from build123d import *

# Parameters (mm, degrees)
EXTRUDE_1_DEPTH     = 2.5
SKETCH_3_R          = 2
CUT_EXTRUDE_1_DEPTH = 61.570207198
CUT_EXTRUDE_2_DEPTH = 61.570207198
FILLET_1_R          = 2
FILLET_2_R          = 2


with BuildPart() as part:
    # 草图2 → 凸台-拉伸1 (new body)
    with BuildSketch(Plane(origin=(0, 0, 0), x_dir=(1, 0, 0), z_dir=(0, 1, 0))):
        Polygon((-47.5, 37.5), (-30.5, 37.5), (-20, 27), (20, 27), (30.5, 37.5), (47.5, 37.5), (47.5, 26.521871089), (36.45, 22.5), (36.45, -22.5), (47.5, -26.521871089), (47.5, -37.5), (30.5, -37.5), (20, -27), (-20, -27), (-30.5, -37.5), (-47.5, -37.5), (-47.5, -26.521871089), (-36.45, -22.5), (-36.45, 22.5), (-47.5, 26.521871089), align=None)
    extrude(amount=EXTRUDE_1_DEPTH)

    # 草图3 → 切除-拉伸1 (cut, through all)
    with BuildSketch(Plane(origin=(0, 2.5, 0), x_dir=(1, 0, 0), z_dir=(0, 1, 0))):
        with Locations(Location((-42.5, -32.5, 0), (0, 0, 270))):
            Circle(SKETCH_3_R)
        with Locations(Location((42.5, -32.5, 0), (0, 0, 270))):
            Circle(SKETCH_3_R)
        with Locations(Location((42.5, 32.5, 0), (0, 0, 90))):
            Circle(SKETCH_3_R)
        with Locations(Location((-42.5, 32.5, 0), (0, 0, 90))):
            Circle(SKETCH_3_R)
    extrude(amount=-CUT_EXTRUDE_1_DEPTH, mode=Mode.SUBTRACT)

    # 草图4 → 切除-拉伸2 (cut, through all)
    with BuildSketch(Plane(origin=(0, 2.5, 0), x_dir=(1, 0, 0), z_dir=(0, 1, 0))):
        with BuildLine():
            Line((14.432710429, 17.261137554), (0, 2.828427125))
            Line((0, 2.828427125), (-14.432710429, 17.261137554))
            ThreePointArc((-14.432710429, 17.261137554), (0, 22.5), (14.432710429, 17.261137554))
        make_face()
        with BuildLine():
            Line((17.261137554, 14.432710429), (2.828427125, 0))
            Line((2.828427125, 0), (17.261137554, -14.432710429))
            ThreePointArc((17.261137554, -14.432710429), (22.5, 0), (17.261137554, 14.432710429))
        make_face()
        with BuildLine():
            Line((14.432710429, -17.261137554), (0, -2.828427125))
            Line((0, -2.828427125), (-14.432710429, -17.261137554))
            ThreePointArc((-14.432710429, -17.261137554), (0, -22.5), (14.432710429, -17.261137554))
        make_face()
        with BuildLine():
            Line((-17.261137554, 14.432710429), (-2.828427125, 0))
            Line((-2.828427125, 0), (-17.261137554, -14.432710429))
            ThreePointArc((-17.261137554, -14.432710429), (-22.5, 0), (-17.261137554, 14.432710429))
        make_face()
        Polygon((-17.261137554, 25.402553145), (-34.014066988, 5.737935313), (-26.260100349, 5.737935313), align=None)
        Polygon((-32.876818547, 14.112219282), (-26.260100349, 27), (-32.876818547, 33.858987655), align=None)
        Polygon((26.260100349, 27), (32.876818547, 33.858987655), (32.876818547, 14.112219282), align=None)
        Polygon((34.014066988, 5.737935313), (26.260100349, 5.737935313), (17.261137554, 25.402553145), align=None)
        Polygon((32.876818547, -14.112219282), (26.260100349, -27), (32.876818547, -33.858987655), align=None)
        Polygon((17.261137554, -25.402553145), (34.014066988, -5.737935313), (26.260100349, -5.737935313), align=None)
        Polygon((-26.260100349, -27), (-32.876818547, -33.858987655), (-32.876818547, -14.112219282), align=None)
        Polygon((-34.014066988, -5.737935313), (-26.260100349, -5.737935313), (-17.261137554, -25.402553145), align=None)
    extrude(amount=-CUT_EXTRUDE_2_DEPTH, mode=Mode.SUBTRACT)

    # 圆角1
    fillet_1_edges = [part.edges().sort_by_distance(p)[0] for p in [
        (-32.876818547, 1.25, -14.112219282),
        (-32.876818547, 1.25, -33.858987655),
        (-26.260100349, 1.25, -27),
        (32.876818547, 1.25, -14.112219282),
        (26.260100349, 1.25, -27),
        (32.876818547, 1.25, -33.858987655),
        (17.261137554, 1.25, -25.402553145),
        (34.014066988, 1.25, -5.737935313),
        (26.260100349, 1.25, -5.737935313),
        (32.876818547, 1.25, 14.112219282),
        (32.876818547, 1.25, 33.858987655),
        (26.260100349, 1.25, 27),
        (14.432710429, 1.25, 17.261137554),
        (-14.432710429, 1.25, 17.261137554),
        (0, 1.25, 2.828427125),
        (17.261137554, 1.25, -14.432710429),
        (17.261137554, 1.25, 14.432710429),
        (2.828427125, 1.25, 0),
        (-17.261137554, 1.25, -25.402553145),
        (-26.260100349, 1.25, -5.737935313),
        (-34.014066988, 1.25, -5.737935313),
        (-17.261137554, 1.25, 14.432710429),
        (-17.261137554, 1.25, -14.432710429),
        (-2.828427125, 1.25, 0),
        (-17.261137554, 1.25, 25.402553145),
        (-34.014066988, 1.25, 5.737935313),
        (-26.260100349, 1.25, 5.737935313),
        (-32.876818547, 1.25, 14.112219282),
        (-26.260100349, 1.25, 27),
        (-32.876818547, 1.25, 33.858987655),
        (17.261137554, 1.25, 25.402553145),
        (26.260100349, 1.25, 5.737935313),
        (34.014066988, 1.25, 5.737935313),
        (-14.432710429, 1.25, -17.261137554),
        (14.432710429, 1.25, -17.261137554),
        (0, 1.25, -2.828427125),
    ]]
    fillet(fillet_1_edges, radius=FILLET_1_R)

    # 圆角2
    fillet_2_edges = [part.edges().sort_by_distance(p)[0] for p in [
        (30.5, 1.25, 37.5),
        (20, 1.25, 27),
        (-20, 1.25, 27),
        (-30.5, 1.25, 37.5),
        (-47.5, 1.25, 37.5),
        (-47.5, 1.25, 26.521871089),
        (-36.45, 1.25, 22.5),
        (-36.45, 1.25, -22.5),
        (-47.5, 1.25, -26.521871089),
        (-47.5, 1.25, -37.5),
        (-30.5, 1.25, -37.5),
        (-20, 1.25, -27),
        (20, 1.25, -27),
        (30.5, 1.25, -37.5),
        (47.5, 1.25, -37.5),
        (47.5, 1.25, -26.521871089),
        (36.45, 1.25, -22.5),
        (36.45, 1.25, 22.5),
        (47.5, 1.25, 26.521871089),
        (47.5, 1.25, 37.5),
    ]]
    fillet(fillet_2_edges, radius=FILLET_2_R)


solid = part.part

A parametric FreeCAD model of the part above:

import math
import FreeCAD as App
import Part
import Sketcher
from FreeCAD import Vector
Q = App.Units.Quantity


def edges_at(feature, points):
    """Names of the edges that pass closest to the given points."""
    edges = feature.Shape.Edges
    near = lambda p: min(range(len(edges)), key=lambda i: edges[i].distToShape(Part.Vertex(*p))[0])
    return sorted({f"Edge{near(p) + 1}" for p in points})


def add_polygon(sketch, points):
    """Adds a closed chain of lines whose ends are joined by coincident constraints."""
    first, n = sketch.GeometryCount, len(points)
    for a, b in zip(points, points[1:] + points[:1]):
        sketch.addGeometry(Part.LineSegment(App.Vector(*a, 0), App.Vector(*b, 0)), False)
    for i in range(n):
        sketch.addConstraint(Sketcher.Constraint("Coincident", first + i, 2, first + (i + 1) % n, 1))

doc = App.newDocument("Part")
body = doc.addObject("PartDesign::Body", "Body")

sketch1 = body.newObject("Sketcher::SketchObject", "Sketch")
sketch1.AttachmentSupport = (doc.getObject("XZ_Plane"), [""])
sketch1.MapMode = "FlatFace"
add_polygon(sketch1, [(-30, -38), (-48, -38), (-48, -27), (-36, -22), (-36, 22), (-48, 27), (-48, 38), (-30, 38), (-20, 27), (20, 27), (30, 38), (48, 38), (48, 27), (36, 22), (36, -22), (48, -27), (48, -38), (30, -38), (20, -27), (-20, -27)])
sketch1.addConstraint(Sketcher.Constraint("Horizontal", 0))
sketch1.addConstraint(Sketcher.Constraint("Vertical", 1))
sketch1.addConstraint(Sketcher.Constraint("Vertical", 3))
sketch1.addConstraint(Sketcher.Constraint("Vertical", 5))
sketch1.addConstraint(Sketcher.Constraint("Horizontal", 6))
sketch1.addConstraint(Sketcher.Constraint("Horizontal", 8))
sketch1.addConstraint(Sketcher.Constraint("Horizontal", 10))
sketch1.addConstraint(Sketcher.Constraint("Vertical", 11))
sketch1.addConstraint(Sketcher.Constraint("Vertical", 13))
sketch1.addConstraint(Sketcher.Constraint("Vertical", 15))
sketch1.addConstraint(Sketcher.Constraint("Horizontal", 16))
sketch1.addConstraint(Sketcher.Constraint("Horizontal", 18))
sketch1.addConstraint(Sketcher.Constraint("Symmetric", 0, 2, 10, 2, -1, 1))
sketch1.addConstraint(Sketcher.Constraint("Symmetric", 2, 2, 12, 2, -1, 1))
sketch1.addConstraint(Sketcher.Constraint("Symmetric", 4, 2, 14, 2, -1, 1))
sketch1.addConstraint(Sketcher.Constraint("Symmetric", 6, 2, 16, 2, -1, 1))
sketch1.addConstraint(Sketcher.Constraint("Symmetric", 7, 2, 17, 2, -1, 1))
sketch1.addConstraint(Sketcher.Constraint("Symmetric", 6, 2, 9, 2, -2))
sketch1.addConstraint(Sketcher.Constraint("Symmetric", 4, 2, 11, 2, -2))
sketch1.addConstraint(Sketcher.Constraint("Perpendicular", 7, 9))
sketch1.addConstraint(Sketcher.Constraint("Parallel", 2, 12))
sketch1.addConstraint(Sketcher.Constraint("Parallel", 4, 14))
sketch1.addConstraint(Sketcher.Constraint("Perpendicular", 17, 19))
sketch1.addConstraint(Sketcher.Constraint("Horizontal", 3, 2, 12, 2))
sketch1.addConstraint(Sketcher.Constraint("Vertical", 8, 2, 17, 2))
sketch1.addConstraint(Sketcher.Constraint("Vertical", 7, 2, 18, 2))
sketch1.addConstraint(Sketcher.Constraint("DistanceX", 0, 2, 0, 1, 17.0))
sketch1.addConstraint(Sketcher.Constraint("DistanceX", 8, 1, 8, 2, 40.0))
sketch1.addConstraint(Sketcher.Constraint("DistanceY", 3, 1, 3, 2, 45.0))
sketch1.addConstraint(Sketcher.Constraint("Angle", 2, Q("20 deg")))
sketch1.addConstraint(Sketcher.Constraint("DistanceY", -1, 1, 7, 2, 27.0))
sketch1.addConstraint(Sketcher.Constraint("DistanceY", 0, 2, 2, 2, 15.0))
sketch1.addConstraint(Sketcher.Constraint("DistanceX", 2, 2, -1, 1, 36.45))
pad1 = body.newObject("PartDesign::Pad", "Pad")
pad1.Profile = sketch1
pad1.Length = 2.5
pad1.Reversed = True

sketch2 = body.newObject("Sketcher::SketchObject", "Sketch001")
sketch2.AttachmentSupport = (doc.getObject("XZ_Plane"), [""])
sketch2.MapMode = "FlatFace"
sketch2.AttachmentOffset = App.Placement(Vector(0, 0, -2.5), App.Rotation())
sketch2.addGeometry(Part.Circle(Vector(-42.5, 32.5, 0), Vector(0, 0, 1), 2), False)
sketch2.addGeometry(Part.Circle(Vector(42.5, 32.5, 0), Vector(0, 0, 1), 2), False)
sketch2.addGeometry(Part.Circle(Vector(42.5, -32.5, 0), Vector(0, 0, 1), 2), False)
sketch2.addGeometry(Part.Circle(Vector(-42.5, -32.5, 0), Vector(0, 0, 1), 2), False)
sketch2.addConstraint(Sketcher.Constraint("Equal", 0, 1))
sketch2.addConstraint(Sketcher.Constraint("Equal", 1, 2))
sketch2.addConstraint(Sketcher.Constraint("Equal", 2, 3))
sketch2.addConstraint(Sketcher.Constraint("Symmetric", 0, 3, 2, 3, -1, 1))
sketch2.addConstraint(Sketcher.Constraint("Symmetric", 1, 3, 3, 3, -1, 1))
sketch2.addConstraint(Sketcher.Constraint("Symmetric", 0, 3, 1, 3, -2))
sketch2.addConstraint(Sketcher.Constraint("Diameter", 0, 4.0))
sketch2.addConstraint(Sketcher.Constraint("DistanceX", 0, 3, 1, 3, 85.0))
sketch2.addConstraint(Sketcher.Constraint("DistanceY", 2, 3, 1, 3, 65.0))
pocket1 = body.newObject("PartDesign::Pocket", "Pocket")
pocket1.Profile = sketch2
pocket1.Type = "ThroughAll"
pocket1.Reversed = True

sketch3 = body.newObject("Sketcher::SketchObject", "Sketch002")
sketch3.AttachmentSupport = (doc.getObject("XZ_Plane"), [""])
sketch3.MapMode = "FlatFace"
sketch3.AttachmentOffset = App.Placement(Vector(0, 0, -2.5), App.Rotation())
sketch3.addGeometry(Part.LineSegment(Vector(0, -3, 0), Vector(14, -17, 0)), False)
sketch3.addGeometry(Part.ArcOfCircle(Part.Circle(Vector(0, 0, 0), Vector(0, 0, 1), 22), math.radians(-130), math.radians(-50)), False)
sketch3.addGeometry(Part.LineSegment(Vector(-14, -17, 0), Vector(0, -3, 0)), False)
sketch3.addGeometry(Part.LineSegment(Vector(17, -14, 0), Vector(3, 0, 0)), False)
sketch3.addGeometry(Part.LineSegment(Vector(3, 0, 0), Vector(17, 14, 0)), False)
sketch3.addGeometry(Part.ArcOfCircle(Part.Circle(Vector(0, 0, 0), Vector(0, 0, 1), 22), math.radians(-40), math.radians(40)), False)
sketch3.addGeometry(Part.LineSegment(Vector(14, 17, 0), Vector(0, 3, 0)), False)
sketch3.addGeometry(Part.LineSegment(Vector(0, 3, 0), Vector(-14, 17, 0)), False)
sketch3.addGeometry(Part.ArcOfCircle(Part.Circle(Vector(0, 0, 0), Vector(0, 0, 1), 22), math.radians(50), math.radians(130)), False)
sketch3.addGeometry(Part.LineSegment(Vector(-3, 0, 0), Vector(-17, -14, 0)), False)
sketch3.addGeometry(Part.ArcOfCircle(Part.Circle(Vector(0, 0, 0), Vector(0, 0, 1), 22), math.radians(140), math.radians(220)), False)
sketch3.addGeometry(Part.LineSegment(Vector(-17, 14, 0), Vector(-3, 0, 0)), False)
add_polygon(sketch3, [(-17, -25), (-34, -6), (-26, -6)])
add_polygon(sketch3, [(-33, -14), (-26, -27), (-33, -34)])
add_polygon(sketch3, [(33, -34), (26, -27), (33, -14)])
add_polygon(sketch3, [(26, -6), (34, -6), (17, -25)])
add_polygon(sketch3, [(33, 14), (26, 27), (33, 34)])
add_polygon(sketch3, [(17, 25), (34, 6), (26, 6)])
add_polygon(sketch3, [(-33, 34), (-26, 27), (-33, 14)])
add_polygon(sketch3, [(-26, 6), (-34, 6), (-17, 25)])
sketch3.addConstraint(Sketcher.Constraint("Coincident", 0, 2, 1, 2))
sketch3.addConstraint(Sketcher.Constraint("Coincident", 1, 1, 2, 1))
sketch3.addConstraint(Sketcher.Constraint("Coincident", 2, 2, 0, 1))
sketch3.addConstraint(Sketcher.Constraint("Coincident", 3, 2, 4, 1))
sketch3.addConstraint(Sketcher.Constraint("Coincident", 4, 2, 5, 2))
sketch3.addConstraint(Sketcher.Constraint("Coincident", 5, 1, 3, 1))
sketch3.addConstraint(Sketcher.Constraint("Coincident", 6, 2, 7, 1))
sketch3.addConstraint(Sketcher.Constraint("Coincident", 7, 2, 8, 2))
sketch3.addConstraint(Sketcher.Constraint("Coincident", 8, 1, 6, 1))
sketch3.addConstraint(Sketcher.Constraint("Coincident", 9, 2, 10, 2))
sketch3.addConstraint(Sketcher.Constraint("Coincident", 10, 1, 11, 1))
sketch3.addConstraint(Sketcher.Constraint("Coincident", 11, 2, 9, 1))
sketch3.addConstraint(Sketcher.Constraint("Horizontal", 13))
sketch3.addConstraint(Sketcher.Constraint("Vertical", 17))
sketch3.addConstraint(Sketcher.Constraint("Vertical", 20))
sketch3.addConstraint(Sketcher.Constraint("Horizontal", 21))
sketch3.addConstraint(Sketcher.Constraint("Vertical", 26))
sketch3.addConstraint(Sketcher.Constraint("Horizontal", 28))
sketch3.addConstraint(Sketcher.Constraint("Vertical", 32))
sketch3.addConstraint(Sketcher.Constraint("Horizontal", 33))
sketch3.addConstraint(Sketcher.Constraint("Coincident", 1, 3, -1, 1))
sketch3.addConstraint(Sketcher.Constraint("Coincident", 5, 3, -1, 1))
sketch3.addConstraint(Sketcher.Constraint("Coincident", 8, 3, -1, 1))
sketch3.addConstraint(Sketcher.Constraint("Coincident", 10, 3, -1, 1))
sketch3.addConstraint(Sketcher.Constraint("Equal", 1, 5))
sketch3.addConstraint(Sketcher.Constraint("Equal", 5, 8))
sketch3.addConstraint(Sketcher.Constraint("Equal", 8, 10))
sketch3.addConstraint(Sketcher.Constraint("Symmetric", 2, 2, 6, 2, -1, 1))
sketch3.addConstraint(Sketcher.Constraint("Symmetric", 3, 2, 11, 2, -1, 1))
sketch3.addConstraint(Sketcher.Constraint("Symmetric", 15, 2, 24, 2, -1, 1))
sketch3.addConstraint(Sketcher.Constraint("Symmetric", 16, 2, 25, 2, -1, 1))
sketch3.addConstraint(Sketcher.Constraint("Symmetric", 12, 2, 27, 2, -1, 1))
sketch3.addConstraint(Sketcher.Constraint("Symmetric", 14, 2, 29, 2, -1, 1))
sketch3.addConstraint(Sketcher.Constraint("Symmetric", 18, 2, 30, 2, -1, 1))
sketch3.addConstraint(Sketcher.Constraint("Symmetric", 19, 2, 31, 2, -1, 1))
sketch3.addConstraint(Sketcher.Constraint("Symmetric", 21, 2, 33, 2, -1, 1))
sketch3.addConstraint(Sketcher.Constraint("Symmetric", 22, 2, 34, 2, -1, 1))
sketch3.addConstraint(Sketcher.Constraint("Symmetric", 15, 2, 18, 2, -2))
sketch3.addConstraint(Sketcher.Constraint("Symmetric", 17, 2, 19, 2, -2))
sketch3.addConstraint(Sketcher.Constraint("Symmetric", 12, 2, 21, 2, -2))
sketch3.addConstraint(Sketcher.Constraint("Symmetric", 14, 2, 22, 2, -2))
sketch3.addConstraint(Sketcher.Constraint("PointOnObject", 2, 2, -2))
sketch3.addConstraint(Sketcher.Constraint("PointOnObject", 3, 2, -1))
sketch3.addConstraint(Sketcher.Constraint("Perpendicular", 0, 2))
sketch3.addConstraint(Sketcher.Constraint("Perpendicular", 2, 3))
sketch3.addConstraint(Sketcher.Constraint("Perpendicular", 3, 4))
sketch3.addConstraint(Sketcher.Constraint("Parallel", 4, 6))
sketch3.addConstraint(Sketcher.Constraint("Perpendicular", 6, 7))
sketch3.addConstraint(Sketcher.Constraint("Perpendicular", 7, 9))
sketch3.addConstraint(Sketcher.Constraint("Perpendicular", 9, 11))
sketch3.addConstraint(Sketcher.Constraint("Parallel", 15, 24))
sketch3.addConstraint(Sketcher.Constraint("Parallel", 14, 29))
sketch3.addConstraint(Sketcher.Constraint("Parallel", 18, 30))
sketch3.addConstraint(Sketcher.Constraint("Parallel", 23, 35))
sketch3.addConstraint(Sketcher.Constraint("Horizontal", 0, 2, 1, 1))
sketch3.addConstraint(Sketcher.Constraint("Horizontal", 16, 2, 20, 2))
sketch3.addConstraint(Sketcher.Constraint("Vertical", 10, 1, 14, 2))
sketch3.addConstraint(Sketcher.Constraint("Vertical", 13, 2, 15, 2))
sketch3.addConstraint(Sketcher.Constraint("Vertical", 18, 2, 23, 2))
sketch3.addConstraint(Sketcher.Constraint("Equal", 2, 3))
sketch3.addConstraint(Sketcher.Constraint("Radius", 1, 22.5))
sketch3.addConstraint(Sketcher.Constraint("DistanceY", 15, 2, -1, 1, 27.0))
sketch3.addConstraint(Sketcher.Constraint("DistanceY", 17, 1, 17, 2, 19.746768))
sketch3.addConstraint(Sketcher.Constraint("DistanceX", 13, 2, -1, 1, 26.2601))
sketch3.addConstraint(Sketcher.Constraint("Distance", 12, 25.83327))
sketch3.addConstraint(Sketcher.Constraint("DistanceX", 13, 1, 13, 2, 7.753967))
sketch3.addConstraint(Sketcher.Constraint("DistanceX", -1, 1, 0, 2, 14.43271))
sketch3.addConstraint(Sketcher.Constraint("DistanceX", 16, 2, -1, 1, 32.876819))
sketch3.addConstraint(Sketcher.Constraint("DistanceY", 17, 2, -1, 1, 14.112219))
sketch3.addConstraint(Sketcher.Constraint("DistanceY", 21, 2, 27, 2, 11.475871))
pocket2 = body.newObject("PartDesign::Pocket", "Pocket001")
pocket2.Profile = sketch3
pocket2.Type = "ThroughAll"
pocket2.Reversed = True
doc.recompute()

fillet = body.newObject("PartDesign::Fillet", "Fillet")
fillet.Base = (pocket2, edges_at(pocket2, [
    (-32.877, 1.25, -14.112),
    (-32.877, 1.25, -33.859),
    (-26.26, 1.25, -27),
    (32.877, 1.25, -14.112),
    (26.26, 1.25, -27),
    (32.877, 1.25, -33.859),
    (17.261, 1.25, -25.403),
    (34.014, 1.25, -5.738),
    (26.26, 1.25, -5.738),
    (32.877, 1.25, 14.112),
    (32.877, 1.25, 33.859),
    (26.26, 1.25, 27),
    (14.433, 1.25, 17.261),
    (-14.433, 1.25, 17.261),
    (0, 1.25, 2.828),
    (17.261, 1.25, -14.433),
    (17.261, 1.25, 14.433),
    (2.828, 1.25, 0),
    (-17.261, 1.25, -25.403),
    (-26.26, 1.25, -5.738),
    (-34.014, 1.25, -5.738),
    (-17.261, 1.25, 14.433),
    (-17.261, 1.25, -14.433),
    (-2.828, 1.25, 0),
    (-17.261, 1.25, 25.403),
    (-34.014, 1.25, 5.738),
    (-26.26, 1.25, 5.738),
    (-32.877, 1.25, 14.112),
    (-26.26, 1.25, 27),
    (-32.877, 1.25, 33.859),
    (17.261, 1.25, 25.403),
    (26.26, 1.25, 5.738),
    (34.014, 1.25, 5.738),
    (-14.433, 1.25, -17.261),
    (14.433, 1.25, -17.261),
    (0, 1.25, -2.828),
]))
fillet.Radius = 2
doc.recompute()

fillet2 = body.newObject("PartDesign::Fillet", "Fillet001")
fillet2.Base = (fillet, edges_at(fillet, [
    (30.5, 1.25, 37.5),
    (20, 1.25, 27),
    (-20, 1.25, 27),
    (-30.5, 1.25, 37.5),
    (-47.5, 1.25, 37.5),
    (-47.5, 1.25, 26.522),
    (-36.45, 1.25, 22.5),
    (-36.45, 1.25, -22.5),
    (-47.5, 1.25, -26.522),
    (-47.5, 1.25, -37.5),
    (-30.5, 1.25, -37.5),
    (-20, 1.25, -27),
    (20, 1.25, -27),
    (30.5, 1.25, -37.5),
    (47.5, 1.25, -37.5),
    (47.5, 1.25, -26.522),
    (36.45, 1.25, -22.5),
    (36.45, 1.25, 22.5),
    (47.5, 1.25, 26.522),
    (47.5, 1.25, 37.5),
]))
fillet2.Radius = 2

doc.recompute()
